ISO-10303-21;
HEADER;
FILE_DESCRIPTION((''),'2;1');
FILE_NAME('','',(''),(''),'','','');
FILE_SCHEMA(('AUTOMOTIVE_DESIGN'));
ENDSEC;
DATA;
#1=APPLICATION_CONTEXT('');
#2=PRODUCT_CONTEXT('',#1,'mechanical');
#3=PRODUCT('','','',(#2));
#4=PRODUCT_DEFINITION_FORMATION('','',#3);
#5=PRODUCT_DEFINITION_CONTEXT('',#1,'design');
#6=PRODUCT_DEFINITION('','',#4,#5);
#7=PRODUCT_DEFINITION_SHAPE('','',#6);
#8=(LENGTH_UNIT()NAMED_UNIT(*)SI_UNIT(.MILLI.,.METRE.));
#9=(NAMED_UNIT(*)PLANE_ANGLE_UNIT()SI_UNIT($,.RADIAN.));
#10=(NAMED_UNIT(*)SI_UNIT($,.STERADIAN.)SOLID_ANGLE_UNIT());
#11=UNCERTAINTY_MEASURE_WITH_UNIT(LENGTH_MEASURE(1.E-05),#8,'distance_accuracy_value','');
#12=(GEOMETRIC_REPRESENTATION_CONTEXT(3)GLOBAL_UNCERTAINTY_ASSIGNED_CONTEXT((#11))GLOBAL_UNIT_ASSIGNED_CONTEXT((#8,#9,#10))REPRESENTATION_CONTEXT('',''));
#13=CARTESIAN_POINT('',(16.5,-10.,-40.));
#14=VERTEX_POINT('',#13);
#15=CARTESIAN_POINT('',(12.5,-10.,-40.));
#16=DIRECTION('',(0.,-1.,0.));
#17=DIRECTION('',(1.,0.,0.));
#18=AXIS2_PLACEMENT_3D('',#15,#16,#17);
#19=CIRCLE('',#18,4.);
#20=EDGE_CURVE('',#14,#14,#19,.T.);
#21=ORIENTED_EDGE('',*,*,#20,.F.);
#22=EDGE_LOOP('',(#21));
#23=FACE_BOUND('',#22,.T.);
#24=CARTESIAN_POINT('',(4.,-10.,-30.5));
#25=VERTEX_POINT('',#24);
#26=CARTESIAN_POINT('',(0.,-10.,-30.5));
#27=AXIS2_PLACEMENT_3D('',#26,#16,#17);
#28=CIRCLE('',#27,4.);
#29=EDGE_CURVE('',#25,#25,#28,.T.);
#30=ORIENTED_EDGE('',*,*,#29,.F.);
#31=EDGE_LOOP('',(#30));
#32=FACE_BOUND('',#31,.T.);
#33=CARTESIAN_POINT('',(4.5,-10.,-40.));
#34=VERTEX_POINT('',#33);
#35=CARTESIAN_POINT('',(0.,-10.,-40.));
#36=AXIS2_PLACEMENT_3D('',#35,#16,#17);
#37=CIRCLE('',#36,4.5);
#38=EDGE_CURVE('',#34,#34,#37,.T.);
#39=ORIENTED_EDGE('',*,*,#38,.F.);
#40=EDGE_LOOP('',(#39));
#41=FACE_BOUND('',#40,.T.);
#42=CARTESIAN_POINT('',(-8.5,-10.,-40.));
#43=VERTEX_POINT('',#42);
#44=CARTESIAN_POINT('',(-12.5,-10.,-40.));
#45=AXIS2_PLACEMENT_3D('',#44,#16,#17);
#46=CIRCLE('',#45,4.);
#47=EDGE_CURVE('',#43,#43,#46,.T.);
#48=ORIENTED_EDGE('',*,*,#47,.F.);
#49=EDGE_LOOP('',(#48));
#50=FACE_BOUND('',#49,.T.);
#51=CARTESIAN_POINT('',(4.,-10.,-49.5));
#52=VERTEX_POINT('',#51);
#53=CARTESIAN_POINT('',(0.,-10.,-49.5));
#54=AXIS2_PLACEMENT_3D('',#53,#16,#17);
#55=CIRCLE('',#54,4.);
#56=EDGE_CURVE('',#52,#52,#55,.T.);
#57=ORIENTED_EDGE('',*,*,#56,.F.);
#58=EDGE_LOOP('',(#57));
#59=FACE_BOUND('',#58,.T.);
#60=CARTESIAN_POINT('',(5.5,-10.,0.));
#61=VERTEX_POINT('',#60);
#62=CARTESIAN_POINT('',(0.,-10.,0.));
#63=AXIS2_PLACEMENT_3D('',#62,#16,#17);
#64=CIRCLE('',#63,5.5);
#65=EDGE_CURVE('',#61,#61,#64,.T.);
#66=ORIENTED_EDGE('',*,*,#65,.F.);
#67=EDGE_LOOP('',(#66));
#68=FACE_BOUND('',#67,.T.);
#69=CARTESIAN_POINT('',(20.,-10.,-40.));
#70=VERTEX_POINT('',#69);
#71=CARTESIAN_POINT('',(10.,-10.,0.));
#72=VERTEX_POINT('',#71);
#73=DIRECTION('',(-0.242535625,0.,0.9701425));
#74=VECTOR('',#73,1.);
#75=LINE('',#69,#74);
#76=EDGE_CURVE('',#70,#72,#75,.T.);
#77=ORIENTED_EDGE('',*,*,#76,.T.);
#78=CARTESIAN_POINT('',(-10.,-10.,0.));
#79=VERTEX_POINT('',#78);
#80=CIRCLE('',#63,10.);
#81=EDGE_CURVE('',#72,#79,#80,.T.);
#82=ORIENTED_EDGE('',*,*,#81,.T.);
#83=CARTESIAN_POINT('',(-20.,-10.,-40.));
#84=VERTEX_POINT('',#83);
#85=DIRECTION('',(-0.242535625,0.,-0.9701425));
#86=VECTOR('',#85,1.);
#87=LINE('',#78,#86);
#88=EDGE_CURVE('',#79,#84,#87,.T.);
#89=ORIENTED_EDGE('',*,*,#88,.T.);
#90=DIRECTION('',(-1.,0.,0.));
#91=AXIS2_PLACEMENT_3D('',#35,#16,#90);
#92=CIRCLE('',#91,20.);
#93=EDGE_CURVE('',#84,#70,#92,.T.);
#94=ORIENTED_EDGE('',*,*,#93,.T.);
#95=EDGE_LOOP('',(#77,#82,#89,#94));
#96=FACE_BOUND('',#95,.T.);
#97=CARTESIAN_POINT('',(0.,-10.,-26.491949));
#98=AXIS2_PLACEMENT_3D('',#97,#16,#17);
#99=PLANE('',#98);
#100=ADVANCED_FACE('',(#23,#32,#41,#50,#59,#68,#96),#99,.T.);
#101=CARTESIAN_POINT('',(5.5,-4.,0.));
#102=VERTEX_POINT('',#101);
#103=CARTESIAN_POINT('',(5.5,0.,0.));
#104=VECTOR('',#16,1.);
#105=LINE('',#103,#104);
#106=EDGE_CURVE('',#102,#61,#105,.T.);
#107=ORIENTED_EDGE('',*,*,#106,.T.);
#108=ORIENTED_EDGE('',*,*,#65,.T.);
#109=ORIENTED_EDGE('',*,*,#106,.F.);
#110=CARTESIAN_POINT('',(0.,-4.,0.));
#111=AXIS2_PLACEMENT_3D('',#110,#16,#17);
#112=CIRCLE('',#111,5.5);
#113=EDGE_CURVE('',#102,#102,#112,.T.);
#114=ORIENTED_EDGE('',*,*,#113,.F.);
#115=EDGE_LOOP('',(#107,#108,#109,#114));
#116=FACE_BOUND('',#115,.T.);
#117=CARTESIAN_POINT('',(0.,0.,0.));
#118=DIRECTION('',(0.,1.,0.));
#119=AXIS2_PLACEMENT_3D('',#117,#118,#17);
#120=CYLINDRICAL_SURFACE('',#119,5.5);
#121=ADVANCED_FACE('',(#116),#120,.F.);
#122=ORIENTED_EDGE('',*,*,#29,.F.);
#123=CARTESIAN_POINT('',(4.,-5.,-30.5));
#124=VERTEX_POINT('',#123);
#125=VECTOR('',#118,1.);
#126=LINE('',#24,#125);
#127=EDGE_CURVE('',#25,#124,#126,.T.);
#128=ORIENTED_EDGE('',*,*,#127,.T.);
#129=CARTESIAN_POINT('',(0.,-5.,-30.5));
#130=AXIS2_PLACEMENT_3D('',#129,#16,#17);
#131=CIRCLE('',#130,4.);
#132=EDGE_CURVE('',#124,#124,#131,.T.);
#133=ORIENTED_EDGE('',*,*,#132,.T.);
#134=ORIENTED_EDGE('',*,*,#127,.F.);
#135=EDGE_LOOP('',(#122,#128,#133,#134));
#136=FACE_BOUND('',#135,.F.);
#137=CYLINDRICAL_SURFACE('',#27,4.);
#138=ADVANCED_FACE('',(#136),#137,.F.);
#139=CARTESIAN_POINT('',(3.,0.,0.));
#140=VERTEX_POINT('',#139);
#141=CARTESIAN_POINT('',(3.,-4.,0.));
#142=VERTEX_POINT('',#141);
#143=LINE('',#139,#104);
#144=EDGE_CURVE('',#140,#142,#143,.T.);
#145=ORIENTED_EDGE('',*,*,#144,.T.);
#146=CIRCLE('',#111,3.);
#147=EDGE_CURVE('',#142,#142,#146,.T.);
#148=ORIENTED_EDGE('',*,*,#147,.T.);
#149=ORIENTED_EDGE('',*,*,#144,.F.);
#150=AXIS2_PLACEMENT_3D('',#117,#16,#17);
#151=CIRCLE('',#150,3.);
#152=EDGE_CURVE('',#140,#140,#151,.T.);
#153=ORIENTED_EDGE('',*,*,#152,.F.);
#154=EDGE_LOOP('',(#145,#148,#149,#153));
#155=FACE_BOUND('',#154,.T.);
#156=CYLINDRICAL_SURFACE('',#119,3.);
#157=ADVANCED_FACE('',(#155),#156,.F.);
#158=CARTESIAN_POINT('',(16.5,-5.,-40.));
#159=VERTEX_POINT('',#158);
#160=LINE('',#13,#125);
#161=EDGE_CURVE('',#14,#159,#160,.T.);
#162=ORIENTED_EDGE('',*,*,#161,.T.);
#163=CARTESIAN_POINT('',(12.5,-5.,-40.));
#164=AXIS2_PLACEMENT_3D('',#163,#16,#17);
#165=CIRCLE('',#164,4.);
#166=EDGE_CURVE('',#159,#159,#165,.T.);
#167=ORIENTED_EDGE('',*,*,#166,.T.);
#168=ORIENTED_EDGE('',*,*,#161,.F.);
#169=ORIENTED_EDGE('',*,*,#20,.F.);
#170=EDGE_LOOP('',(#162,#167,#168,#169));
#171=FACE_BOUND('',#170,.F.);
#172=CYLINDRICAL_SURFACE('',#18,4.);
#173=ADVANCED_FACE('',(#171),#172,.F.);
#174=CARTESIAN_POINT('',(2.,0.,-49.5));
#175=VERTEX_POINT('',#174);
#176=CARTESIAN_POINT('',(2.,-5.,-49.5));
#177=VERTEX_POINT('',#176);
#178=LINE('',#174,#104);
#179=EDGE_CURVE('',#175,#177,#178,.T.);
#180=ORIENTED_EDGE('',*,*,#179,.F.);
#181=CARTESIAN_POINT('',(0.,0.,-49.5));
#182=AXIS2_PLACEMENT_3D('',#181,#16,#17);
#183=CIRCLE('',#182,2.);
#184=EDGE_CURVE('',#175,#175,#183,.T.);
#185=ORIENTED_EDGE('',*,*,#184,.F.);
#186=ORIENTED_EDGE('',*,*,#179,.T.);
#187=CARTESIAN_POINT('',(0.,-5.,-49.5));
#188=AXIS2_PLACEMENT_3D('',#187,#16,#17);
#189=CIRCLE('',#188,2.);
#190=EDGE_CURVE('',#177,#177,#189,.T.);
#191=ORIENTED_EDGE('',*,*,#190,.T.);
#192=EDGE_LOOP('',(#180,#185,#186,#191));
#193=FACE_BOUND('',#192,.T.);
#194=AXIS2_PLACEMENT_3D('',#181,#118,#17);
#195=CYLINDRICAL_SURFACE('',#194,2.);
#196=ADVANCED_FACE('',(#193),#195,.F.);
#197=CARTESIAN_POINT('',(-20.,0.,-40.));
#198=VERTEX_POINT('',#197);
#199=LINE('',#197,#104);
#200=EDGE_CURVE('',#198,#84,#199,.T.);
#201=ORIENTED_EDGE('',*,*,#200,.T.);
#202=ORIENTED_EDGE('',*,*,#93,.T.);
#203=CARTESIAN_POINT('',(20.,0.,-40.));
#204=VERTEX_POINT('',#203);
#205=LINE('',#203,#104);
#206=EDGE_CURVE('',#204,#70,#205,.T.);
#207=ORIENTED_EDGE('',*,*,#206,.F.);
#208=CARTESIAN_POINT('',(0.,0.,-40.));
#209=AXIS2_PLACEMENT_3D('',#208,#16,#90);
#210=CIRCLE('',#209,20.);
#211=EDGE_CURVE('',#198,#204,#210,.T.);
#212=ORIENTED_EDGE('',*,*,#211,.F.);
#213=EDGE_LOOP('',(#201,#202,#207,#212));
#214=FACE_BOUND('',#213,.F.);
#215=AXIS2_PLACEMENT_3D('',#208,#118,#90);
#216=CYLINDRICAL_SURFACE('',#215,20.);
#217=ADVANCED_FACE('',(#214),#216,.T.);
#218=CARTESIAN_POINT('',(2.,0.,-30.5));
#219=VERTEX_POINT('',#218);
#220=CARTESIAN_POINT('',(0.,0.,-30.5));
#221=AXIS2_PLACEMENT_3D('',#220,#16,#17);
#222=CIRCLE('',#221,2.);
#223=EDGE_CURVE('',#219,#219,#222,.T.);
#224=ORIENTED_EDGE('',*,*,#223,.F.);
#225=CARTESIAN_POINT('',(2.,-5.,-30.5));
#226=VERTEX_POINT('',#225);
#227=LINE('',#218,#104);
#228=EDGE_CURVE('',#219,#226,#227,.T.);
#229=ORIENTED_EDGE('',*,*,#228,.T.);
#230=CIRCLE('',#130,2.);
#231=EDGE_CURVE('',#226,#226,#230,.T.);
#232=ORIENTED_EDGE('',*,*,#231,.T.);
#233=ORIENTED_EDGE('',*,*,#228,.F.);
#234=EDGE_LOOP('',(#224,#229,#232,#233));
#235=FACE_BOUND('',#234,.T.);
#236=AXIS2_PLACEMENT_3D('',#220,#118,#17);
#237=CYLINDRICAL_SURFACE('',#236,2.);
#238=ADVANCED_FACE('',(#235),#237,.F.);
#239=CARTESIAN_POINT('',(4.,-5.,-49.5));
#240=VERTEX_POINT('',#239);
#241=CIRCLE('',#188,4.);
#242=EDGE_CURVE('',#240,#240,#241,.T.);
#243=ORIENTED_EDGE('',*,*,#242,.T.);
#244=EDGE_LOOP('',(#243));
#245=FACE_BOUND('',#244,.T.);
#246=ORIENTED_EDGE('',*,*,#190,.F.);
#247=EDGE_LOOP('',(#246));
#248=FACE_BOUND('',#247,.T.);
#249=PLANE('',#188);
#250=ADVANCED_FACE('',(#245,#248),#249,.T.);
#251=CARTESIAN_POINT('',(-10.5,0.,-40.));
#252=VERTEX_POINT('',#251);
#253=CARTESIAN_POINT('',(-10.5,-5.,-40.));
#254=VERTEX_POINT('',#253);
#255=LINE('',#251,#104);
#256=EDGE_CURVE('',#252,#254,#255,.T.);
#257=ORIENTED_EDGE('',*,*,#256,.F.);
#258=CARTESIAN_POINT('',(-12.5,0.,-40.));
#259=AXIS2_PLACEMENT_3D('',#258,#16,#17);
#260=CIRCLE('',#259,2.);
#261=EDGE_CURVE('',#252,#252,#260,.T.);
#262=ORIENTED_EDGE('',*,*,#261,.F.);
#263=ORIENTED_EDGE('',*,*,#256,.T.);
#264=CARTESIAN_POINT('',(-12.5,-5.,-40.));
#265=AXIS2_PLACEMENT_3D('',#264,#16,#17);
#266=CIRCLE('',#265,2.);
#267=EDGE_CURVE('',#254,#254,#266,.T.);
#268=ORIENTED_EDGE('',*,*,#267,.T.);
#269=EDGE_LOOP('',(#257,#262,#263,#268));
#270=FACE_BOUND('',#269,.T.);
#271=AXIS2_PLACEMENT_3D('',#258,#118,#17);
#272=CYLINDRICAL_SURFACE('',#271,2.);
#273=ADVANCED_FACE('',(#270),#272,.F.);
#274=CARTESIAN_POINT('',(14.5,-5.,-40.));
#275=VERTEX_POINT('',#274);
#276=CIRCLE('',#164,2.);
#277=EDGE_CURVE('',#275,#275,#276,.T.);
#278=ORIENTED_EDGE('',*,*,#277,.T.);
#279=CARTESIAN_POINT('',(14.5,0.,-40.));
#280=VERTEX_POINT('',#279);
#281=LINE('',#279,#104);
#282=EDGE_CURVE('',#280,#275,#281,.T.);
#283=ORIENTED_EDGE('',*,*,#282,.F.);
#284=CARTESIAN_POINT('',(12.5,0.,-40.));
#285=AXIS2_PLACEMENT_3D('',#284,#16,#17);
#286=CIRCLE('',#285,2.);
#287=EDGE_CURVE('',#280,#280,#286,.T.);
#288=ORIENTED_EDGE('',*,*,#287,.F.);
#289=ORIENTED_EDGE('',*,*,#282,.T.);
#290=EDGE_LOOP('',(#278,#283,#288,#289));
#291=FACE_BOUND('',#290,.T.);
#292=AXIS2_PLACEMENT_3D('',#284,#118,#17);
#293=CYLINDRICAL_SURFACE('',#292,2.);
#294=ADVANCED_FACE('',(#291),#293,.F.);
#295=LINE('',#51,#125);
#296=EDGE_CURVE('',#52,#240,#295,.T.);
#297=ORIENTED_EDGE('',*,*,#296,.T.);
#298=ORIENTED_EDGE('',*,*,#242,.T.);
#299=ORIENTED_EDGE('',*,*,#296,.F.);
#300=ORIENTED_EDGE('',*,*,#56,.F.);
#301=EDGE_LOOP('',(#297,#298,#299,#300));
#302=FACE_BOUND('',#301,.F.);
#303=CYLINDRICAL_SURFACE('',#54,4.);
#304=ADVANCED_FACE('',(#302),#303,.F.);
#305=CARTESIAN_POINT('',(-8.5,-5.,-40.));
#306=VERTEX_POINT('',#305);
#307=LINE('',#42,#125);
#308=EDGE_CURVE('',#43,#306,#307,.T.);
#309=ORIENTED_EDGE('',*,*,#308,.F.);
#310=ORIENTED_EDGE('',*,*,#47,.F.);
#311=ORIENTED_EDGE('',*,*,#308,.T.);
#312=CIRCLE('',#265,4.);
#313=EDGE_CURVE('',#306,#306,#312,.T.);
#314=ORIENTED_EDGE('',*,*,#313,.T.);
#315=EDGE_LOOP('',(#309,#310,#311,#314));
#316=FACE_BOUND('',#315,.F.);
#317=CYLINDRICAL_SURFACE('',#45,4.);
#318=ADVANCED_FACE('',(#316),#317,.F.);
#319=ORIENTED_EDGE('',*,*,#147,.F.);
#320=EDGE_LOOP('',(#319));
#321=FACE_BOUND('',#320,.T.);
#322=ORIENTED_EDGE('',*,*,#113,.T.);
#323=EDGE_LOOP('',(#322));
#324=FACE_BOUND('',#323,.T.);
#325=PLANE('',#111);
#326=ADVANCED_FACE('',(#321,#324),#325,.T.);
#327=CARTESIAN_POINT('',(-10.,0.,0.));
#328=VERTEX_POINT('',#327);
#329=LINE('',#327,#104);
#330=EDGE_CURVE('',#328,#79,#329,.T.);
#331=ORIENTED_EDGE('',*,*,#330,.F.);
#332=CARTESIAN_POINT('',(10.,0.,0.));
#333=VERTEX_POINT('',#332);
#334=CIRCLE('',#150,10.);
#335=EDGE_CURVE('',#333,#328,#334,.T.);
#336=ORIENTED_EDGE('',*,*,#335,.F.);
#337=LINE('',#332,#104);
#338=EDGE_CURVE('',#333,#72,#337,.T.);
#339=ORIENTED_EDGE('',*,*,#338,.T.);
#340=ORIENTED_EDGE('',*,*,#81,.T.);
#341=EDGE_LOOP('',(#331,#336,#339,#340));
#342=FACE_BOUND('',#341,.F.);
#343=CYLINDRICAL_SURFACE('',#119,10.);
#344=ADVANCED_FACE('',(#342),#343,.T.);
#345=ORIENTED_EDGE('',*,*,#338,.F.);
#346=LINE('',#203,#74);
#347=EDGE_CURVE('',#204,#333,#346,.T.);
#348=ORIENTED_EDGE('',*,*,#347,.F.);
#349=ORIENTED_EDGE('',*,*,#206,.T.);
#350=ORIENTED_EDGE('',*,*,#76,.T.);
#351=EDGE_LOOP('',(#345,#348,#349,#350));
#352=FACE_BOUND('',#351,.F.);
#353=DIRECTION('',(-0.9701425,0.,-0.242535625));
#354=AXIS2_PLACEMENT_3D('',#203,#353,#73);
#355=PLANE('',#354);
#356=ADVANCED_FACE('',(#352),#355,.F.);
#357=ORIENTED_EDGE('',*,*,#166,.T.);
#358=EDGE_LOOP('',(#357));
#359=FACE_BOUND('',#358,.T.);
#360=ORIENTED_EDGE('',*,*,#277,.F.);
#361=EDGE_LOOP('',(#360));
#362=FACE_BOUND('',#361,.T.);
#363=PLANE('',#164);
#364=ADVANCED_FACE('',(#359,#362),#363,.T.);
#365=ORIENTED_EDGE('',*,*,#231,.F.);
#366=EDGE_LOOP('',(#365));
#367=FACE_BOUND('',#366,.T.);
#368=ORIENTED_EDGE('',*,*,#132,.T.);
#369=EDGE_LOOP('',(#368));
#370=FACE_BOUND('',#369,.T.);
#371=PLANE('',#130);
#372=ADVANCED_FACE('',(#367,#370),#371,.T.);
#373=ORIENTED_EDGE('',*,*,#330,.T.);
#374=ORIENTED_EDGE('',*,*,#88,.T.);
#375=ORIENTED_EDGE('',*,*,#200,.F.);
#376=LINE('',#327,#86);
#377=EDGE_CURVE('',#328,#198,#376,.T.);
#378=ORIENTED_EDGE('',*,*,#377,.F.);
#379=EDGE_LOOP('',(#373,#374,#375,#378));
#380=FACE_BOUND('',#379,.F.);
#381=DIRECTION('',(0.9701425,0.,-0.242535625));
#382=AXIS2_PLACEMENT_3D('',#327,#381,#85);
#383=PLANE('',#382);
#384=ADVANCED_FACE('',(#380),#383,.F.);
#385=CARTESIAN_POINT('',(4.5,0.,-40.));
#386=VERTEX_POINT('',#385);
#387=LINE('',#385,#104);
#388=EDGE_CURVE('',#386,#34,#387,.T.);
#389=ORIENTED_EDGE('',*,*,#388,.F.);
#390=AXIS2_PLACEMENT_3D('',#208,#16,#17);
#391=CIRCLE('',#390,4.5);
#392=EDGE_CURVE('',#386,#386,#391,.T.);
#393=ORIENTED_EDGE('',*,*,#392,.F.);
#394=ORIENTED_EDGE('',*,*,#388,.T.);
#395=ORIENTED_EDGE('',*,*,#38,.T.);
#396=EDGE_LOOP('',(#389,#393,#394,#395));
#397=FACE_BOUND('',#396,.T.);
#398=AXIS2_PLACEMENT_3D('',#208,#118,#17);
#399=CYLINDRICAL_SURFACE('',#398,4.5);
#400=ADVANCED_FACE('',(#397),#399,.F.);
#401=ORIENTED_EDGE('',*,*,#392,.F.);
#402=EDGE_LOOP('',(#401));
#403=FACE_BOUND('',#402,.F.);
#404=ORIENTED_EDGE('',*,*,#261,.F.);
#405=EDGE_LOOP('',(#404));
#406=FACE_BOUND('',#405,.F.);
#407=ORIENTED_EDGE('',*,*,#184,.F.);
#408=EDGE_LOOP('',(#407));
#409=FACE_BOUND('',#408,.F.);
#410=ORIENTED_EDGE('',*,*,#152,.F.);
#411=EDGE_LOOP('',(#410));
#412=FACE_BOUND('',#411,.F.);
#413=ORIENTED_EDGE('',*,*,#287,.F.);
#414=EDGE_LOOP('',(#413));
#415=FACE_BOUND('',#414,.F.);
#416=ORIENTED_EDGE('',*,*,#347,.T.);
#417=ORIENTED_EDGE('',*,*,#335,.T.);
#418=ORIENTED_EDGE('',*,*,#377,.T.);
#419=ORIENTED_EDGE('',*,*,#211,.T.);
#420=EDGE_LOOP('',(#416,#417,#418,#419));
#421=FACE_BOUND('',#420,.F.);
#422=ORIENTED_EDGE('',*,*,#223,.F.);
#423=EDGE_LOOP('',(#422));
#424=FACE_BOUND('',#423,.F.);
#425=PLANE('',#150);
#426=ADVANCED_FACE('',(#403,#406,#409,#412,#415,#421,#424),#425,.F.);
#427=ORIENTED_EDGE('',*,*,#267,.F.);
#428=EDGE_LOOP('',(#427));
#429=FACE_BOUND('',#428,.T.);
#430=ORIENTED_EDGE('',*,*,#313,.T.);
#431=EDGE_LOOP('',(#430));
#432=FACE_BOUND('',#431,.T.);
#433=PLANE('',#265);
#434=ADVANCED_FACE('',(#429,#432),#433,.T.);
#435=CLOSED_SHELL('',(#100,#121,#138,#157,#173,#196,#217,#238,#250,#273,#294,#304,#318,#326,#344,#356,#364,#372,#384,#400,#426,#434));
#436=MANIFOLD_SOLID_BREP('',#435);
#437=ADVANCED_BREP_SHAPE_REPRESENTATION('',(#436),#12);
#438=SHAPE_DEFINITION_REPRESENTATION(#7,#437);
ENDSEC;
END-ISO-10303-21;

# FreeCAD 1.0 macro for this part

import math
import FreeCAD as App
import Part
import Sketcher

doc = App.newDocument("Part")
params = doc.addObject("Spreadsheet::Sheet", "Params")
for row, (alias, value) in enumerate([
    ("sketch1_diameter", "4 mm"),
    ("sketch1_diameter2", "9 mm"),
    ("sketch1_diameter3", "11 mm"),
    ("sketch1_radius", "10 mm"),
    ("sketch1_radius2", "20 mm"),
    ("pad1_length", "10 mm"),
    ("sketch2_diameter", "11 mm"),
    ("sketch2_diameter2", "6 mm"),
    ("pad2_length", "4 mm"),
    ("sketch3_diameter", "8 mm"),
    ("sketch3_diameter2", "4 mm"),
    ("pocket1_length", "5 mm"),
], start=1):
    params.set(f"A{row}", alias)
    params.set(f"B{row}", "=" + value)
    params.setAlias(f"B{row}", alias)

body = doc.addObject("PartDesign::Body", "Body")

sketch1 = body.newObject("Sketcher::SketchObject", "Sketch")
sketch1.AttachmentSupport = (doc.getObject("XZ_Plane"), [""])
sketch1.MapMode = "FlatFace"
sketch1.addGeometry([
    Part.LineSegment(App.Vector(20, -40, 0), App.Vector(10, 0, 0)),
    Part.ArcOfCircle(Part.Circle(App.Vector(0, 0, 0), App.Vector(0, 0, 1), 10), math.radians(0), math.radians(180)),
    Part.LineSegment(App.Vector(-10, 0, 0), App.Vector(-20, -40, 0)),
    Part.ArcOfCircle(Part.Circle(App.Vector(0, -40, 0), App.Vector(0, 0, 1), 20), math.radians(180), math.radians(360)),
    Part.Circle(App.Vector(-12.5, -40, 0), App.Vector(0, 0, 1), 2),
    Part.Circle(App.Vector(0, -49.5, 0), App.Vector(0, 0, 1), 2),
    Part.Circle(App.Vector(0, -40, 0), App.Vector(0, 0, 1), 4.5),
    Part.Circle(App.Vector(12.5, -40, 0), App.Vector(0, 0, 1), 2),
    Part.Circle(App.Vector(0, -30.5, 0), App.Vector(0, 0, 1), 2),
    Part.Circle(App.Vector(0, 0, 0), App.Vector(0, 0, 1), 5.5),
], False)
sketch1.addConstraint([
    Sketcher.Constraint("Coincident", 0, 2, 1, 1),
    Sketcher.Constraint("Coincident", 1, 2, 2, 1),
    Sketcher.Constraint("Coincident", 2, 2, 3, 1),
    Sketcher.Constraint("Coincident", 3, 2, 0, 1),
    Sketcher.Constraint("Coincident", 1, 3, -1, 1),
    Sketcher.Constraint("Coincident", 9, 3, -1, 1),
    Sketcher.Constraint("Coincident", 6, 3, 3, 3),
    Sketcher.Constraint("Equal", 4, 5),
    Sketcher.Constraint("Equal", 5, 7),
    Sketcher.Constraint("Equal", 7, 8),
    Sketcher.Constraint("Symmetric", 4, 3, 7, 3, -2),
    Sketcher.Constraint("Symmetric", 2, 2, 3, 2, -2),
    Sketcher.Constraint("PointOnObject", 5, 3, -2),
    Sketcher.Constraint("PointOnObject", 8, 3, -2),
    Sketcher.Constraint("PointOnObject", 0, 2, -1),
    Sketcher.Constraint("PointOnObject", 1, 2, -1),
    Sketcher.Constraint("Horizontal", 3, 3, 4, 3),
    Sketcher.Constraint("Horizontal", 7, 3, 2, 2),
    Sketcher.Constraint("Diameter", 4, 4.0),
    Sketcher.Constraint("Diameter", 6, 9.0),
    Sketcher.Constraint("Diameter", 9, 11.0),
    Sketcher.Constraint("Radius", 1, 10.0),
    Sketcher.Constraint("Radius", 3, 20.0),
    Sketcher.Constraint("DistanceY", 3, 3, -1, 1, 40.0),
    Sketcher.Constraint("DistanceX", 4, 3, 7, 3, 25.0),
    Sketcher.Constraint("DistanceY", 5, 3, 8, 3, 19.0),
    Sketcher.Constraint("DistanceY", 5, 3, -1, 1, 49.5),
])
sketch1.setExpression("Constraints[18]", "Params.sketch1_diameter")
sketch1.setExpression("Constraints[19]", "Params.sketch1_diameter2")
sketch1.setExpression("Constraints[20]", "Params.sketch1_diameter3")
sketch1.setExpression("Constraints[21]", "Params.sketch1_radius")
sketch1.setExpression("Constraints[22]", "Params.sketch1_radius2")
pad1 = body.newObject("PartDesign::Pad", "Pad")
pad1.Profile = sketch1
pad1.setExpression("Length", "Params.pad1_length")

sketch2 = body.newObject("Sketcher::SketchObject", "Sketch001")
sketch2.AttachmentSupport = (doc.getObject("XZ_Plane"), [""])
sketch2.MapMode = "FlatFace"
sketch2.addGeometry([
    Part.Circle(App.Vector(0, 0, 0), App.Vector(0, 0, 1), 5.5),
    Part.Circle(App.Vector(0, 0, 0), App.Vector(0, 0, 1), 3),
], False)
sketch2.addConstraint([
    Sketcher.Constraint("Coincident", 0, 3, -1, 1),
    Sketcher.Constraint("Coincident", 1, 3, -1, 1),
    Sketcher.Constraint("Diameter", 0, 11.0),
    Sketcher.Constraint("Diameter", 1, 6.0),
])
sketch2.setExpression("Constraints[2]", "Params.sketch2_diameter")
sketch2.setExpression("Constraints[3]", "Params.sketch2_diameter2")
pad2 = body.newObject("PartDesign::Pad", "Pad001")
pad2.Profile = sketch2
pad2.setExpression("Length", "Params.pad2_length")

sketch3 = body.newObject("Sketcher::SketchObject", "Sketch002")
sketch3.AttachmentSupport = (doc.getObject("XZ_Plane"), [""])
sketch3.MapMode = "FlatFace"
sketch3.AttachmentOffset = App.Placement(App.Vector(0, 0, 10), App.Rotation())
sketch3.addGeometry([
    Part.Circle(App.Vector(0, -30.5, 0), App.Vector(0, 0, 1), 4),
    Part.Circle(App.Vector(0, -30.5, 0), App.Vector(0, 0, 1), 2),
    Part.Circle(App.Vector(-12.5, -40, 0), App.Vector(0, 0, 1), 4),
    Part.Circle(App.Vector(-12.5, -40, 0), App.Vector(0, 0, 1), 2),
    Part.Circle(App.Vector(0, -49.5, 0), App.Vector(0, 0, 1), 4),
    Part.Circle(App.Vector(0, -49.5, 0), App.Vector(0, 0, 1), 2),
    Part.Circle(App.Vector(12.5, -40, 0), App.Vector(0, 0, 1), 4),
    Part.Circle(App.Vector(12.5, -40, 0), App.Vector(0, 0, 1), 2),
], False)
sketch3.addConstraint([
    Sketcher.Constraint("Coincident", 1, 3, 0, 3),
    Sketcher.Constraint("Coincident", 3, 3, 2, 3),
    Sketcher.Constraint("Coincident", 5, 3, 4, 3),
    Sketcher.Constraint("Coincident", 7, 3, 6, 3),
    Sketcher.Constraint("Equal", 0, 2),
    Sketcher.Constraint("Equal", 1, 3),
    Sketcher.Constraint("Equal", 2, 4),
    Sketcher.Constraint("Equal", 3, 5),
    Sketcher.Constraint("Equal", 4, 6),
    Sketcher.Constraint("Equal", 5, 7),
    Sketcher.Constraint("Symmetric", 2, 3, 6, 3, -2),
    Sketcher.Constraint("PointOnObject", 0, 3, -2),
    Sketcher.Constraint("PointOnObject", 4, 3, -2),
    Sketcher.Constraint("Diameter", 0, 8.0),
    Sketcher.Constraint("Diameter", 1, 4.0),
    Sketcher.Constraint("DistanceY", 2, 3, -1, 1, 40.0),
    Sketcher.Constraint("DistanceY", 4, 3, 0, 3, 19.0),
    Sketcher.Constraint("DistanceX", 2, 3, 6, 3, 25.0),
    Sketcher.Constraint("DistanceY", 0, 3, -1, 1, 30.5),
])
sketch3.setExpression("Constraints[13]", "Params.sketch3_diameter")
sketch3.setExpression("Constraints[14]", "Params.sketch3_diameter2")
pocket1 = body.newObject("PartDesign::Pocket", "Pocket")
pocket1.Profile = sketch3
pocket1.setExpression("Length", "Params.pocket1_length")

doc.recompute()
